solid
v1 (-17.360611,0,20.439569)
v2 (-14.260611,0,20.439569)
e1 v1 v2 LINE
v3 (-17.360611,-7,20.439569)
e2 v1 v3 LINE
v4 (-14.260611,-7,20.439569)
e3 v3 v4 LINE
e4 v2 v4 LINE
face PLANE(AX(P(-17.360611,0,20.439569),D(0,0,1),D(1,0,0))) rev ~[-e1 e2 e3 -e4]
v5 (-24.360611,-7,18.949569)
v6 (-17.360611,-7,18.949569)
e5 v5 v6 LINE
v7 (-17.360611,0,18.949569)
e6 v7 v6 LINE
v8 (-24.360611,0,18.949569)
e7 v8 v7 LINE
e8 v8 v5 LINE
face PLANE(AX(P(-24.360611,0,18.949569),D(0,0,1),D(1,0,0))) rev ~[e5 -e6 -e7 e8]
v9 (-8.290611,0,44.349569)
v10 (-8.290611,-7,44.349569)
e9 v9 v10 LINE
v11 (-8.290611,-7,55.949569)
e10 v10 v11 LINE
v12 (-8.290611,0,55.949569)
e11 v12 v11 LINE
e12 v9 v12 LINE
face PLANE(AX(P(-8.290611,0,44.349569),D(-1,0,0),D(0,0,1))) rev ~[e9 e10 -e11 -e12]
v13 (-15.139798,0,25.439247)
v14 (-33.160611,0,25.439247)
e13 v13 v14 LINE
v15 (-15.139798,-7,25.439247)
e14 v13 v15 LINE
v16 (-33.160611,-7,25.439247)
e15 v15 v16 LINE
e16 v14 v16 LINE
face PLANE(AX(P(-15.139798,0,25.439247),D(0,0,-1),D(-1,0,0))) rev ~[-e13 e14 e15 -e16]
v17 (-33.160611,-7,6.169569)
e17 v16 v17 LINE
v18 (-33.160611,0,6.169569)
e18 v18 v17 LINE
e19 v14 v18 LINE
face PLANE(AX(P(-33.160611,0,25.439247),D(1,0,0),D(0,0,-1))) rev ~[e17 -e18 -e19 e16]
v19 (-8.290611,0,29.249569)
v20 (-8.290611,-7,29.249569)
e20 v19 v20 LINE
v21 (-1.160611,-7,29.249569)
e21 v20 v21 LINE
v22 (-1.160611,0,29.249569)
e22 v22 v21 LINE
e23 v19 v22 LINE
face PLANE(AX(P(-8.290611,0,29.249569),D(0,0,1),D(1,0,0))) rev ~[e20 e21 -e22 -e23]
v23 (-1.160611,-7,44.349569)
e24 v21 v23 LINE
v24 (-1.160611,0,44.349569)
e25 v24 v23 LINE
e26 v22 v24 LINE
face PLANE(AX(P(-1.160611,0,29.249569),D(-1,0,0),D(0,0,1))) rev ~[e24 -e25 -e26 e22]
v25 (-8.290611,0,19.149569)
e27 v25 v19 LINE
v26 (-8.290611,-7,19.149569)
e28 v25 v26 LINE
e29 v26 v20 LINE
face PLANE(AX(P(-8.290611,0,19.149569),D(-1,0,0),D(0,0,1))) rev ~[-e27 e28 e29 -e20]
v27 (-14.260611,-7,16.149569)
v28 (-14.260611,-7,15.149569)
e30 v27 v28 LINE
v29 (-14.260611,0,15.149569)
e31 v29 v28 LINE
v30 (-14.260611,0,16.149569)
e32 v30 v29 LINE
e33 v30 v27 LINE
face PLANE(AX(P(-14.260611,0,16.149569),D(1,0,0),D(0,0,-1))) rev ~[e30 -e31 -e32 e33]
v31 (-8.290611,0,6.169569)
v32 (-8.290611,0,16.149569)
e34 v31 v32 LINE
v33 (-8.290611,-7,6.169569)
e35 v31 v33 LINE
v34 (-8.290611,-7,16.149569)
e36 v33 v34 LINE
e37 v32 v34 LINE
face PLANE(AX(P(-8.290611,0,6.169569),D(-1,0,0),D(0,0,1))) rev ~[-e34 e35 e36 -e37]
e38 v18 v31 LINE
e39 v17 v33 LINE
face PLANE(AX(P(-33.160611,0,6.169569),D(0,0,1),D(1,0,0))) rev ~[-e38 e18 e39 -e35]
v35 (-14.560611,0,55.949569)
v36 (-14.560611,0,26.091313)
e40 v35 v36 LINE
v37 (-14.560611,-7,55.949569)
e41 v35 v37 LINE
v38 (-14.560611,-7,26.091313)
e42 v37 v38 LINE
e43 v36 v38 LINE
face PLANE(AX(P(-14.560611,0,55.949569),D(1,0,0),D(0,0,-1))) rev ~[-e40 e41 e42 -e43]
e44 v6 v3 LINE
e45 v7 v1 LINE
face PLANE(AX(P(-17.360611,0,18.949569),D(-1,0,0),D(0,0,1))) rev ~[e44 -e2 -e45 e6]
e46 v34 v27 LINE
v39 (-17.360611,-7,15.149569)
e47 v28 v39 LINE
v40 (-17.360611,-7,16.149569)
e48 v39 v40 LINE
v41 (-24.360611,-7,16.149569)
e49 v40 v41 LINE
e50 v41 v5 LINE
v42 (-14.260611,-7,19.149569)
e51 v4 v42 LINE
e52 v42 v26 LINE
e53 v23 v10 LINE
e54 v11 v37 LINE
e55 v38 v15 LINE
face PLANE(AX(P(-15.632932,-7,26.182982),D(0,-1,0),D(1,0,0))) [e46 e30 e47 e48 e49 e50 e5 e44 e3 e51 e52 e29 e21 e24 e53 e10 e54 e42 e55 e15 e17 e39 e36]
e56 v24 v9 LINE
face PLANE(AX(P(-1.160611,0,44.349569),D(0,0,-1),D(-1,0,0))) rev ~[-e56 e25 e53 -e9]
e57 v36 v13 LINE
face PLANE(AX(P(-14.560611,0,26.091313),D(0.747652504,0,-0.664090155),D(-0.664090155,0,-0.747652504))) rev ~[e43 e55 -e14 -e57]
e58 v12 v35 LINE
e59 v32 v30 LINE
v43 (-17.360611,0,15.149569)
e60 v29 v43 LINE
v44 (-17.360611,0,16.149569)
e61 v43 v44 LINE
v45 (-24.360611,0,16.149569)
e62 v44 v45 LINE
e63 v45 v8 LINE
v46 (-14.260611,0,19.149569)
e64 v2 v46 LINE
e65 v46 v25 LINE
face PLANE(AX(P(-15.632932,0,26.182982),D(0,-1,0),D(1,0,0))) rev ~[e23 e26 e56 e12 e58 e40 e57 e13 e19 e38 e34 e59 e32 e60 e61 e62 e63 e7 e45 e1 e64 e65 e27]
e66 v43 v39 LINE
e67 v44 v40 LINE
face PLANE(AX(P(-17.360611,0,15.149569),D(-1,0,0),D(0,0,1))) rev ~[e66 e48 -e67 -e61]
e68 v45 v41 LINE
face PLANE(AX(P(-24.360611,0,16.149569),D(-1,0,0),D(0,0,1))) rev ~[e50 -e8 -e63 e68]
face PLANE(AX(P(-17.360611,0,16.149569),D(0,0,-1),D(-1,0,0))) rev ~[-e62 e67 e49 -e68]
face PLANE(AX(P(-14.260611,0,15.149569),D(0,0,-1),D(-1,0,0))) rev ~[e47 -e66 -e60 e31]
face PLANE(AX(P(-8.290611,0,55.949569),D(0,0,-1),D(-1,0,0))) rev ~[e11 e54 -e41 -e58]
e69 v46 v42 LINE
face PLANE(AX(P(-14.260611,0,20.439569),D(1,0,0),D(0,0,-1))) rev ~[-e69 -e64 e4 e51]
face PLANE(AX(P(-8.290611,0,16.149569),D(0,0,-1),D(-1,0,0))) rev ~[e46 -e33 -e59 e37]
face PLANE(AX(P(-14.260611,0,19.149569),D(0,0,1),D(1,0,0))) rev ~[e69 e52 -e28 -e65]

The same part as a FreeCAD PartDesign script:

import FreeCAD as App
import Part
import Sketcher
from FreeCAD import Vector


def add_polygon(sketch, points):
    """Adds a closed chain of lines whose ends are joined by coincident constraints."""
    first, n = sketch.GeometryCount, len(points)
    for a, b in zip(points, points[1:] + points[:1]):
        sketch.addGeometry(Part.LineSegment(App.Vector(*a, 0), App.Vector(*b, 0)), False)
    for i in range(n):
        sketch.addConstraint(Sketcher.Constraint("Coincident", first + i, 2, first + (i + 1) % n, 1))

doc = App.newDocument("Part")
body = doc.addObject("PartDesign::Body", "Body")

# Sketch on XZ plane
sketch1 = body.newObject("Sketcher::SketchObject", "Sketch")
sketch1.AttachmentSupport = (doc.getObject("XZ_Plane"), [""])
sketch1.MapMode = "FlatFace"
add_polygon(sketch1, [(-8.3, 55.9), (-14.6, 55.9), (-14.6, 26.1), (-15.1, 25.4), (-33.2, 25.4), (-33.2, 6.2), (-8.3, 6.2), (-8.3, 16.1), (-14.3, 16.1), (-14.3, 15.1), (-17.4, 15.1), (-17.4, 16.1), (-24.4, 16.1), (-24.4, 18.9), (-17.4, 18.9), (-17.4, 20.4), (-14.3, 20.4), (-14.3, 19.1), (-8.3, 19.1), (-8.3, 29.2), (-1.2, 29.2), (-1.2, 44.3), (-8.3, 44.3)])  # lines 0-22
sketch1.addConstraint([
    Sketcher.Constraint("Horizontal", 0),
    Sketcher.Constraint("Vertical", 1),
    Sketcher.Constraint("Horizontal", 3),
    Sketcher.Constraint("Vertical", 4),
    Sketcher.Constraint("Horizontal", 5),
    Sketcher.Constraint("Vertical", 6),
    Sketcher.Constraint("Horizontal", 7),
    Sketcher.Constraint("Vertical", 8),
    Sketcher.Constraint("Horizontal", 9),
    Sketcher.Constraint("Vertical", 10),
    Sketcher.Constraint("Horizontal", 11),
    Sketcher.Constraint("Vertical", 12),
    Sketcher.Constraint("Horizontal", 13),
    Sketcher.Constraint("Vertical", 14),
    Sketcher.Constraint("Horizontal", 15),
    Sketcher.Constraint("Vertical", 16),
    Sketcher.Constraint("Horizontal", 17),
    Sketcher.Constraint("Vertical", 18),
    Sketcher.Constraint("Horizontal", 19),
    Sketcher.Constraint("Vertical", 20),
    Sketcher.Constraint("Horizontal", 21),
    Sketcher.Constraint("Vertical", 22),
    Sketcher.Constraint("Horizontal", 7, 2, 10, 2),
    Sketcher.Constraint("Vertical", 10, 2, 13, 2),
    Sketcher.Constraint("Vertical", 8, 2, 15, 2),
    Sketcher.Constraint("Vertical", 6, 2, 17, 2),
    Sketcher.Constraint("Vertical", 18, 2, 21, 2),
    Sketcher.Constraint("DistanceX", 11, 2, 11, 1, 7.0),
    Sketcher.Constraint("DistanceY", 8, 2, 8, 1, 1.0),
    Sketcher.Constraint("DistanceX", 9, 2, 9, 1, 3.1),
    Sketcher.Constraint("DistanceY", 12, 1, 12, 2, 2.8),
    Sketcher.Constraint("DistanceY", 18, 1, 18, 2, 10.1),
    Sketcher.Constraint("DistanceY", 20, 1, 20, 2, 15.1),
    Sketcher.Constraint("DistanceY", 22, 1, 22, 2, 11.6),
    Sketcher.Constraint("DistanceY", 7, 2, 16, 2, 3.0),
    Sketcher.Constraint("DistanceX", 0, 2, 0, 1, 6.27),
    Sketcher.Constraint("DistanceX", 5, 1, 5, 2, 24.87),
    Sketcher.Constraint("DistanceX", 7, 2, 7, 1, 5.97),
    Sketcher.Constraint("DistanceX", 19, 1, 19, 2, 7.13),
    Sketcher.Constraint("DistanceY", 6, 1, 6, 2, 9.98),
    Sketcher.Constraint("DistanceY", 14, 1, 14, 2, 1.49),
    Sketcher.Constraint("DistanceY", 4, 2, 4, 1, 19.269678),
    Sketcher.Constraint("DistanceX", 2, 2, -1, 1, 15.139798),
    Sketcher.Constraint("Distance", 2, 0.872151),
    Sketcher.Constraint("DistanceX", 3, 2, 3, 1, 18.020813),
    Sketcher.Constraint("DistanceY", -1, 1, 0, 2, 55.949569),
])
pad1 = body.newObject("PartDesign::Pad", "Pad")
pad1.Profile = sketch1
pad1.Length = 7

doc.recompute()
